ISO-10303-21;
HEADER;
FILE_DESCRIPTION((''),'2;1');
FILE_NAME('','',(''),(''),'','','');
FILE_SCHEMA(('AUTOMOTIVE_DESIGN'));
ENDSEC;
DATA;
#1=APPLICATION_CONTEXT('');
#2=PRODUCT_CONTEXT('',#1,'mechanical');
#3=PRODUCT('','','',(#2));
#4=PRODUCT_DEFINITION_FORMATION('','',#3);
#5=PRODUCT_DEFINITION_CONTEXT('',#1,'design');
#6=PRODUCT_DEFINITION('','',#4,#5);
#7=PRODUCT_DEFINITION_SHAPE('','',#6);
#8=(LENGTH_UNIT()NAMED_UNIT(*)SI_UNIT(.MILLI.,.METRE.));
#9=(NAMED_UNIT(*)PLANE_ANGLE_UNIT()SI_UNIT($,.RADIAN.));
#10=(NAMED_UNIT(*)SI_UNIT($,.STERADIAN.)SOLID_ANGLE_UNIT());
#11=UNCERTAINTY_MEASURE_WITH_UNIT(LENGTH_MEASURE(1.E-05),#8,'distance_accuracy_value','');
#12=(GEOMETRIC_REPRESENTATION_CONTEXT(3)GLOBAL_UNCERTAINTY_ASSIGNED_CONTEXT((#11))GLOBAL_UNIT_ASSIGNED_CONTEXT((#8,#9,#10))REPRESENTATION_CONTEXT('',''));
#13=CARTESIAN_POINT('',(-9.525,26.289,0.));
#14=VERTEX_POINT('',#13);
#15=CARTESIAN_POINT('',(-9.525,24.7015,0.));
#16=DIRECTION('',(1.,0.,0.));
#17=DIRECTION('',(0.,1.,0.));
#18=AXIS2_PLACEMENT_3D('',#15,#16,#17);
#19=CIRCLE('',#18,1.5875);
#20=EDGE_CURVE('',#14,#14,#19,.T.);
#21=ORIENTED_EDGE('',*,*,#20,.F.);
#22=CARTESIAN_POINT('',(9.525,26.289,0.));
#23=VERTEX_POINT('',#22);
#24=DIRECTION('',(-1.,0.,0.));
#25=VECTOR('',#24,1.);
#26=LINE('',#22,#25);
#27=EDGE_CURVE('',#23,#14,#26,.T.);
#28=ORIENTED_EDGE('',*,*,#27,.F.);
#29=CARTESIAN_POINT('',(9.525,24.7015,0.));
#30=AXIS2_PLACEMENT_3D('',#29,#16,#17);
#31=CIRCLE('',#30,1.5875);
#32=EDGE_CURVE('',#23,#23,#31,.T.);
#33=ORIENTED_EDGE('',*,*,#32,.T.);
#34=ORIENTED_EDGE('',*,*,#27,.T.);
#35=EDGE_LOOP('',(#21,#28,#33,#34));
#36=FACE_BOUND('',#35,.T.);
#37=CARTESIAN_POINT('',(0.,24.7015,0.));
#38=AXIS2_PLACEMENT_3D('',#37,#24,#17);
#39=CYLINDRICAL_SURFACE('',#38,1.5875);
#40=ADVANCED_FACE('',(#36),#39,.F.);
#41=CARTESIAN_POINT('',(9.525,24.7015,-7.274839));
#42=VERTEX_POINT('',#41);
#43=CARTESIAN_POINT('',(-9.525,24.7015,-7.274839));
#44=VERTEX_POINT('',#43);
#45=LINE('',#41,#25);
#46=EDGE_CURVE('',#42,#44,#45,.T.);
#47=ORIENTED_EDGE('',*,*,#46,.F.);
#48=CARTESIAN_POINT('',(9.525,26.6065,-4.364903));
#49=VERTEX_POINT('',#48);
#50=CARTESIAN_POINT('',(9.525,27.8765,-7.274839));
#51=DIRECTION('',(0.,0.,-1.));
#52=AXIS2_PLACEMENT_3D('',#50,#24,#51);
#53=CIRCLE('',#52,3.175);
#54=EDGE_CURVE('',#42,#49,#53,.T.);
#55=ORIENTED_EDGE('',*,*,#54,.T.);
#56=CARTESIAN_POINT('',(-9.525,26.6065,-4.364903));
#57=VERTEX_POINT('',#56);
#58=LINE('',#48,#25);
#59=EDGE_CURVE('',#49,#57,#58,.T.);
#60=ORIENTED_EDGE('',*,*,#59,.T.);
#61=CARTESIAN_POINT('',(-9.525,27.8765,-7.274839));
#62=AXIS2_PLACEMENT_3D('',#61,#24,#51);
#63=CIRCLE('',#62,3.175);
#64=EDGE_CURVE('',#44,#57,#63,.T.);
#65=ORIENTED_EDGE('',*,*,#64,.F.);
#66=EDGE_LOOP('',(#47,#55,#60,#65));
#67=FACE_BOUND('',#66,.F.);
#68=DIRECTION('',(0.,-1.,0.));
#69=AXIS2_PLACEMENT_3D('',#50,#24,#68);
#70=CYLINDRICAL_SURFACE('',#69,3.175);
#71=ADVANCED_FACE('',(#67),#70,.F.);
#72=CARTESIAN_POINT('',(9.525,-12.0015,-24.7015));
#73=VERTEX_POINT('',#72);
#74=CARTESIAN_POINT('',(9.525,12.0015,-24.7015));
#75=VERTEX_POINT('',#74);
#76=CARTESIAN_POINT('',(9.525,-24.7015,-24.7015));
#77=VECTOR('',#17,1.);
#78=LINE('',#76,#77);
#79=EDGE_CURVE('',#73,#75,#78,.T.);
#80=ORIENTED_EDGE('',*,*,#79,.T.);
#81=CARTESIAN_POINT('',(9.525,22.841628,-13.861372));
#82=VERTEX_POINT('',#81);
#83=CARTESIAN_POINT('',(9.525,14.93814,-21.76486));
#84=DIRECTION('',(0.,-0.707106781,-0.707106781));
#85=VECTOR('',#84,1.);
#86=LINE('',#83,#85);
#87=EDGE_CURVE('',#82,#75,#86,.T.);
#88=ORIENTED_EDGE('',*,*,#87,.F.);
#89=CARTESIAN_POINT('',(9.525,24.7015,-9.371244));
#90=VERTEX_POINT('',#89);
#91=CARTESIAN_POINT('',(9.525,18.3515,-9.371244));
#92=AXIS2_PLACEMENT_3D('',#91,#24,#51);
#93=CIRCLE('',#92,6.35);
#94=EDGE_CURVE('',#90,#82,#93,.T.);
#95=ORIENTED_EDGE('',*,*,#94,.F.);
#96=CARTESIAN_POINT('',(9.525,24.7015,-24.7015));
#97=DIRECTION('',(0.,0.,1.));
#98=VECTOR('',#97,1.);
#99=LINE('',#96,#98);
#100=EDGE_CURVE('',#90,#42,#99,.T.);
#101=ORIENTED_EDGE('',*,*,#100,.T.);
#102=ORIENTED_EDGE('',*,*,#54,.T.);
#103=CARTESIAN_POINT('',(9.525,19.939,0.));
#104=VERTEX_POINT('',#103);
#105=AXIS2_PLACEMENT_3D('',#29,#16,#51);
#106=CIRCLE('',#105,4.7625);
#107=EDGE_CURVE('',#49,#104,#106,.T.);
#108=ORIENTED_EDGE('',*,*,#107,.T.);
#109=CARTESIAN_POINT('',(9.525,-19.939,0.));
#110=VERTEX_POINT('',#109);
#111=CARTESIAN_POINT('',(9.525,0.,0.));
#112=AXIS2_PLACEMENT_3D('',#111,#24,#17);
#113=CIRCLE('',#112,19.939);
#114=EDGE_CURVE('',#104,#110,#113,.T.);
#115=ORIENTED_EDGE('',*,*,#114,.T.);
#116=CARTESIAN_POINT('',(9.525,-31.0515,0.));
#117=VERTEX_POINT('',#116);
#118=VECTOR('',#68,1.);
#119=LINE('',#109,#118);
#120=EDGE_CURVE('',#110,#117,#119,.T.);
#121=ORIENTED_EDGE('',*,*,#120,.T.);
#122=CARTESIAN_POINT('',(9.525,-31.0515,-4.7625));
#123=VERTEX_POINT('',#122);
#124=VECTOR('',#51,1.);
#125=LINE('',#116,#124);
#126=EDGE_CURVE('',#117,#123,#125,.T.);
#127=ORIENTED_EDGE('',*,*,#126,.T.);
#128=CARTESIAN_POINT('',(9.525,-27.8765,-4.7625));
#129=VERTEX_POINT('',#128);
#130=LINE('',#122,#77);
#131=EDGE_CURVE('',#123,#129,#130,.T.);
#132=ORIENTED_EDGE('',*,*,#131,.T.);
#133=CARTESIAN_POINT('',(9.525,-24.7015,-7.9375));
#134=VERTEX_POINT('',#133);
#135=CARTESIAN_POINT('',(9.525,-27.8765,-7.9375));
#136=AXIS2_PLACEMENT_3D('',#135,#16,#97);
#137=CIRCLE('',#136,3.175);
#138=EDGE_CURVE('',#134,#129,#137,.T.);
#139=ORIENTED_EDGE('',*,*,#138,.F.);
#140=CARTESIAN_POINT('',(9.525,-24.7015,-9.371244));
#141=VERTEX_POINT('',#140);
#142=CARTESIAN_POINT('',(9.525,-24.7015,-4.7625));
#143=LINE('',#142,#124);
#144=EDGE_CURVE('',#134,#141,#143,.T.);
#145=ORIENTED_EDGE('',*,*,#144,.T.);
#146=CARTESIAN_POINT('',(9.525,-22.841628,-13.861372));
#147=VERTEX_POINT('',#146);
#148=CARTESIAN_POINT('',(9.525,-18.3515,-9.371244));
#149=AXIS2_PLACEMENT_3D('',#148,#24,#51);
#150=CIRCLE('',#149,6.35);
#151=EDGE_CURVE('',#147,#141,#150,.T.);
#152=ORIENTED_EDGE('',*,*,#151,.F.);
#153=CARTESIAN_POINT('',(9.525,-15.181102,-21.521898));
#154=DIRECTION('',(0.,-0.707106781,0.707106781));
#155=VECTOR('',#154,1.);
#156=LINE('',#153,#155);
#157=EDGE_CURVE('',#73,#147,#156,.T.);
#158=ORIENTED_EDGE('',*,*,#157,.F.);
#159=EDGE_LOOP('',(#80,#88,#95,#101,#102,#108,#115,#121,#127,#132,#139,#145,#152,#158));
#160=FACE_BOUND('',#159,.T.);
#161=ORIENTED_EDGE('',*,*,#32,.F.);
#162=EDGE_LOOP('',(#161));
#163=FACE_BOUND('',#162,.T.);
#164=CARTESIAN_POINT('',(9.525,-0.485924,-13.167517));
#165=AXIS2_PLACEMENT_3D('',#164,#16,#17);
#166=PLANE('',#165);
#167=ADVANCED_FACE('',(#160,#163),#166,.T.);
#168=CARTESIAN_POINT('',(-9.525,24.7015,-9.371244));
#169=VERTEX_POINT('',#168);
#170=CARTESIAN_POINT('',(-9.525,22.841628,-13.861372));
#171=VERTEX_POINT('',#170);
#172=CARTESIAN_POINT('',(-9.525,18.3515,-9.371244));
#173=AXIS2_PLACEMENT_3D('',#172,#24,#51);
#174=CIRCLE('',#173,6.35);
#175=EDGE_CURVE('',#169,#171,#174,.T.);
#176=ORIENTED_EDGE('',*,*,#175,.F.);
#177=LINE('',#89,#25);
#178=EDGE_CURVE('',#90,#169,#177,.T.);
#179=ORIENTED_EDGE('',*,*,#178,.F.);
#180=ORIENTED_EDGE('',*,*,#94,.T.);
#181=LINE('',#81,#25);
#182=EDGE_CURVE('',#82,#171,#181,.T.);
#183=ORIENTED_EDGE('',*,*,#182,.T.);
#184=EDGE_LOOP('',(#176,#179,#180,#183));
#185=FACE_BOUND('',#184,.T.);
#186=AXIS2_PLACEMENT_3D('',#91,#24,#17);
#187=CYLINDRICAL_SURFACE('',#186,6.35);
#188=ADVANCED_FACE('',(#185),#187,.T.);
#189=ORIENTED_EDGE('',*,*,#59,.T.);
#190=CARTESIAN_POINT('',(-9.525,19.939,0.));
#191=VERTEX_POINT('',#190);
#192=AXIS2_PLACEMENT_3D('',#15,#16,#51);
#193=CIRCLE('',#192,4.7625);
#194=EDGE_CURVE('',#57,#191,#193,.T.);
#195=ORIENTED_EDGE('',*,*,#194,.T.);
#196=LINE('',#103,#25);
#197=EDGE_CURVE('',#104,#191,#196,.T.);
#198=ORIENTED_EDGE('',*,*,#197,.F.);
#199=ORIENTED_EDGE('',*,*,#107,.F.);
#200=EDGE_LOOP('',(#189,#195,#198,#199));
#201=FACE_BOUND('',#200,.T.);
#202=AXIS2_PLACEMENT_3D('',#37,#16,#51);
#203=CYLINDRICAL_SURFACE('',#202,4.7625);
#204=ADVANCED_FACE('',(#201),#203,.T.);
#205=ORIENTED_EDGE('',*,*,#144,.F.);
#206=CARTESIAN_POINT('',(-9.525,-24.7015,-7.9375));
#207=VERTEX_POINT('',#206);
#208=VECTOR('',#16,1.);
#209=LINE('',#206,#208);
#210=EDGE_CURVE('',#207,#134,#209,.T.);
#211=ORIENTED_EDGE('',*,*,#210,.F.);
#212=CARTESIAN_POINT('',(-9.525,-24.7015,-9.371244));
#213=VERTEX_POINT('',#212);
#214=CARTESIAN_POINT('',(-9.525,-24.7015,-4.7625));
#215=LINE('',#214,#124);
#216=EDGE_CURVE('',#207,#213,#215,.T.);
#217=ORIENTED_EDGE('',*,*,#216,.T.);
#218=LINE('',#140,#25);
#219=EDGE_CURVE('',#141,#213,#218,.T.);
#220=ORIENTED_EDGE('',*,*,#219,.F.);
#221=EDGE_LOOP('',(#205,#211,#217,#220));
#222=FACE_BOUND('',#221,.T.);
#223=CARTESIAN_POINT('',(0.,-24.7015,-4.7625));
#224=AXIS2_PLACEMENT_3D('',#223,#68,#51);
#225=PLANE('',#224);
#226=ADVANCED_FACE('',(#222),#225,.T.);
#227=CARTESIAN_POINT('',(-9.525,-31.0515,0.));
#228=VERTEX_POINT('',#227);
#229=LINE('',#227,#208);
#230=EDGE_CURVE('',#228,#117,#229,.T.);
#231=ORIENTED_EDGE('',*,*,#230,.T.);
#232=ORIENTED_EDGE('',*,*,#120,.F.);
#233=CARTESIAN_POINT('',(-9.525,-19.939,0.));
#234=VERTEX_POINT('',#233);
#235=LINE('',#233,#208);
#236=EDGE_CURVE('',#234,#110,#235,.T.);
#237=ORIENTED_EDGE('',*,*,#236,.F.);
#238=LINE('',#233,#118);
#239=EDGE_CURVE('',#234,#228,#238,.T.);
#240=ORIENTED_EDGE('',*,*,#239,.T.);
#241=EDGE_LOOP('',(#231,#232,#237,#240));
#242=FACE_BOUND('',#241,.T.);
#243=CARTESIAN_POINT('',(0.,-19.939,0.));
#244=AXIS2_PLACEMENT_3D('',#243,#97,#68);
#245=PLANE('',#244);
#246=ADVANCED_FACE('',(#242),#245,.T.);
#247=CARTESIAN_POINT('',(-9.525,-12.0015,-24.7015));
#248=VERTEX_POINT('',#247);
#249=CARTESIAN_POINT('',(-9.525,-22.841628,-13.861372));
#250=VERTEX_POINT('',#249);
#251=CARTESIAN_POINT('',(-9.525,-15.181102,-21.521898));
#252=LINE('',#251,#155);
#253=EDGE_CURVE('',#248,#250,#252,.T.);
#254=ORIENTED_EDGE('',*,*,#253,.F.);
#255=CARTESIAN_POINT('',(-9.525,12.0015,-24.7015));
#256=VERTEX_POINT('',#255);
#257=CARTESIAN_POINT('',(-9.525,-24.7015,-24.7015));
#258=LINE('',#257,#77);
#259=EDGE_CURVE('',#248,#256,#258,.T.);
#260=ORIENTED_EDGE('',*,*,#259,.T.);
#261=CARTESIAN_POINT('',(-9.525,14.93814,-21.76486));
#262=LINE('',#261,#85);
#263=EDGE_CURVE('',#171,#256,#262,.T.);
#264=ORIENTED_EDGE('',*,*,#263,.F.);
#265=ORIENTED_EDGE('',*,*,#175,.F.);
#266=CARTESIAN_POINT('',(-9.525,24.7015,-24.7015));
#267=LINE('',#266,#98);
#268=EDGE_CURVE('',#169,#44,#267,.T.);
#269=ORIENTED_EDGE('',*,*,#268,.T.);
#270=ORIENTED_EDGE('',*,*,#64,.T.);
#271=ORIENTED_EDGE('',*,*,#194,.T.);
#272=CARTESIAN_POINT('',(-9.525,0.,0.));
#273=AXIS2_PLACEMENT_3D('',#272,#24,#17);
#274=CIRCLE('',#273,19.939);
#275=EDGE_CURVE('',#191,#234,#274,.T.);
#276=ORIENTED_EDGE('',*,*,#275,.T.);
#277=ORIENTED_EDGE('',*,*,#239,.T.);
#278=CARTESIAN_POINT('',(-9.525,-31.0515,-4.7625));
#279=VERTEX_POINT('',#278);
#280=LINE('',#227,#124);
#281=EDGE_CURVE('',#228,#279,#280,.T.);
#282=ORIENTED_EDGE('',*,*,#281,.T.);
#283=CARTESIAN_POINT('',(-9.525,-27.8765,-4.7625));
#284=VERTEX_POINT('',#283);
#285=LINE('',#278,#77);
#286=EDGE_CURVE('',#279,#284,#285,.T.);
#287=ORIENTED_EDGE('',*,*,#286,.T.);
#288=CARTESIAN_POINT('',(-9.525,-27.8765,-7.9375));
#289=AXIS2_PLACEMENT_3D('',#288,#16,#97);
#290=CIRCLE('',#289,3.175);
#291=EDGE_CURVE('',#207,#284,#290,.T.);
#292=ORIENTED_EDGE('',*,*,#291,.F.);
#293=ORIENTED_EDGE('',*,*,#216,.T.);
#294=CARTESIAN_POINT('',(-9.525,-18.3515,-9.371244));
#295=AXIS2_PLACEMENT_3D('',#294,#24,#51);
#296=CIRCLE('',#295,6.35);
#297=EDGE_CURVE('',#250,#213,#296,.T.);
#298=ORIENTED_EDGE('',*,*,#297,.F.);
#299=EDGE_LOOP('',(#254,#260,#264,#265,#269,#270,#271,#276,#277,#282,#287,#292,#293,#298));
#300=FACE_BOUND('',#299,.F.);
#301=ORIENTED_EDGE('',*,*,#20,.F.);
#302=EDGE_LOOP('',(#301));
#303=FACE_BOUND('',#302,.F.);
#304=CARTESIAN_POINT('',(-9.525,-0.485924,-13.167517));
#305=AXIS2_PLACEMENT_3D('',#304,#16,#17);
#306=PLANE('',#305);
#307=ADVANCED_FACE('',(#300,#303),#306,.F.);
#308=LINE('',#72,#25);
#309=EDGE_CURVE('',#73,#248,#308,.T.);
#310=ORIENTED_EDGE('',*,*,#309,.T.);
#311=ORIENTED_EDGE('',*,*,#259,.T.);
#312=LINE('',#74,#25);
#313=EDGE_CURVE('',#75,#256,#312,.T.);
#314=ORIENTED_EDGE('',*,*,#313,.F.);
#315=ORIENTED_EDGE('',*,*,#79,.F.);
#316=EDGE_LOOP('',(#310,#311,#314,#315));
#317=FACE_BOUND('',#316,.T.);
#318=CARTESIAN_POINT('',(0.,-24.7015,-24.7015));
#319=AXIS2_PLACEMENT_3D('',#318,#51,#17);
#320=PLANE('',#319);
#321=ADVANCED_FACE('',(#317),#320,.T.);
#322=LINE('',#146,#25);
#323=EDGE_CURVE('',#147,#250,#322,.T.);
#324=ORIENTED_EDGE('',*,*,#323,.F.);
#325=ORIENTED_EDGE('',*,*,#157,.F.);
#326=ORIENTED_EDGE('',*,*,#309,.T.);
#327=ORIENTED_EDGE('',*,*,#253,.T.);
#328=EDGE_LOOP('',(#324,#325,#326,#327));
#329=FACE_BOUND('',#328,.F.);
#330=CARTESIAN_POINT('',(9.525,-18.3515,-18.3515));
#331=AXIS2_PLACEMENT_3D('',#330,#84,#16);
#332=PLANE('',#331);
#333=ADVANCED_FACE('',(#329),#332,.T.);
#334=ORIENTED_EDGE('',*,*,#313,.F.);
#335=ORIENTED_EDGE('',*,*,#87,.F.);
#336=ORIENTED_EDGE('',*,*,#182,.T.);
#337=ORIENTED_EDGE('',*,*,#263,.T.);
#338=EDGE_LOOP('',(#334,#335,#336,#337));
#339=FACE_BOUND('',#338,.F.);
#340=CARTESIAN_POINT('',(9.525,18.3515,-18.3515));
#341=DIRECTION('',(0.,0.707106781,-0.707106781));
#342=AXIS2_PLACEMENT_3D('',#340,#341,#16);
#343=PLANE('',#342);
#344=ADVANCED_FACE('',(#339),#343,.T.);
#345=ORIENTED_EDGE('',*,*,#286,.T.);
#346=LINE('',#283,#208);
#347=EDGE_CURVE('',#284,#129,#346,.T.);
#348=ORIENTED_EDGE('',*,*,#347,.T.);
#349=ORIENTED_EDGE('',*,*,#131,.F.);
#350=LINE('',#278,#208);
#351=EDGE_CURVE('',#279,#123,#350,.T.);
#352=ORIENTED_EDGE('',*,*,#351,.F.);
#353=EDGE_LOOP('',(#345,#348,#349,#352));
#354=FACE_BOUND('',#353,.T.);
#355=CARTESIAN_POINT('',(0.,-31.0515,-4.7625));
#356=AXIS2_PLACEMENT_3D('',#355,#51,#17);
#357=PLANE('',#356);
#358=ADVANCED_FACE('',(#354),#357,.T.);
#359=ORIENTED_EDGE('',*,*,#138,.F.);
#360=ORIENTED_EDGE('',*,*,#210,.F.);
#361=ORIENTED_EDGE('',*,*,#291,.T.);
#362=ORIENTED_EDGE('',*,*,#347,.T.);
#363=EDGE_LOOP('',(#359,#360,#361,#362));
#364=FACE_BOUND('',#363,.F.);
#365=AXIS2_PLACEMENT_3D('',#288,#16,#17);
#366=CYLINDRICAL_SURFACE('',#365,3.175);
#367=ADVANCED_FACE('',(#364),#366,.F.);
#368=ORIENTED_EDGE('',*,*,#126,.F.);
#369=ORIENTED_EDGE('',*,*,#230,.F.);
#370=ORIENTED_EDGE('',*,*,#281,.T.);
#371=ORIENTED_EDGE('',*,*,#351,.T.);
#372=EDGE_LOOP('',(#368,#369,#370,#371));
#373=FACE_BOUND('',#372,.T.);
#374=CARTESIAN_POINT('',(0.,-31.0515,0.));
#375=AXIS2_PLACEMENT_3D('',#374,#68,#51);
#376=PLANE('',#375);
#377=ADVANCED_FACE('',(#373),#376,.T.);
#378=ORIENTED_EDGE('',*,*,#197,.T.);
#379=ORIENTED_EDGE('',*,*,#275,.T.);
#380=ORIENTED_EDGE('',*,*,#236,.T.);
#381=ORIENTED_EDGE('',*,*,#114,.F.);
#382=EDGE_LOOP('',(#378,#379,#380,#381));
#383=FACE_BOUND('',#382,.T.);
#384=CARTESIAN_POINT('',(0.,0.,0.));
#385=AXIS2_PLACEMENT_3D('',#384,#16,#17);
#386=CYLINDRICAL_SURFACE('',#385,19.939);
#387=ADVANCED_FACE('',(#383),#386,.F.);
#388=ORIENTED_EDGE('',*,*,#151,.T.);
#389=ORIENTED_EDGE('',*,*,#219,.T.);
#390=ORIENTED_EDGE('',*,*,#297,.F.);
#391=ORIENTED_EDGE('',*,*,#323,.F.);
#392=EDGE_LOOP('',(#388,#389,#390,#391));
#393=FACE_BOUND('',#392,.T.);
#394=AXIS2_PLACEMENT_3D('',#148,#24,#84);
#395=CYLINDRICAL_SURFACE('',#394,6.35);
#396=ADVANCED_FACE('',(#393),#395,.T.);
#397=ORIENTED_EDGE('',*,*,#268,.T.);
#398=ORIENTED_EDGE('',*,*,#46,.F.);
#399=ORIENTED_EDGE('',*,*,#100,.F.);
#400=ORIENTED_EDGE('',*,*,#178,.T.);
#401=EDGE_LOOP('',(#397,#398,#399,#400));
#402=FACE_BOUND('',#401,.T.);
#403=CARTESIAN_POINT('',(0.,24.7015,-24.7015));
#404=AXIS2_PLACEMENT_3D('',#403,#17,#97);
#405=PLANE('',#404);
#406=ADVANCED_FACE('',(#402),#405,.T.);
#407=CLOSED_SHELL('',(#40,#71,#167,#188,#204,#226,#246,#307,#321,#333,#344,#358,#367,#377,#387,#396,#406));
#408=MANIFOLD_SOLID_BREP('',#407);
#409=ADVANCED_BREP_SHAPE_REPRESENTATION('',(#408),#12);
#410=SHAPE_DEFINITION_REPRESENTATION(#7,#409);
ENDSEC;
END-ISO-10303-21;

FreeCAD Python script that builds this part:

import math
import FreeCAD as App
import Part
import Sketcher
from FreeCAD import Vector
Q = App.Units.Quantity


def edges_at(feature, points):
    """Names of the edges that pass closest to the given points."""
    edges = feature.Shape.Edges
    near = lambda p: min(range(len(edges)), key=lambda i: edges[i].distToShape(Part.Vertex(*p))[0])
    return sorted({f"Edge{near(p) + 1}" for p in points})

doc = App.newDocument("Part")
params = doc.addObject("Spreadsheet::Sheet", "Params")
for row, (alias, value) in enumerate([
    ("sketch1_diameter", "0.125 in"),
    ("sketch1_radius", "0.785 in"),
    ("sketch1_radius2", "0.1875 in"),
    ("sketch1_width", "0.25 in"),
    ("sketch1_height", "0.785 in"),
    ("pad1_length", "0.75 in"),
    ("chamfer_size", "0.5 in"),
    ("fillet_radius", "0.125 in"),
    ("fillet2_radius", "0.25 in"),
], start=1):
    params.set(f"A{row}", alias)
    params.set(f"B{row}", "=" + value)
    params.setAlias(f"B{row}", alias)

body = doc.addObject("PartDesign::Body", "Body")

# Sketch on YZ plane
sketch1 = doc.addObject("Sketcher::SketchObject", "Sketch")
body.addObject(sketch1)
sketch1.AttachmentSupport = (doc.YZ_Plane, [""])
sketch1.MapMode = "FlatFace"
sketch1.addGeometry([
    Part.ArcOfCircle(Part.Circle(Vector(0, 0, 0), Vector(0, 0, 1), 19.939), math.radians(180), math.radians(360)),  # 0
    Part.LineSegment(Vector(-19.939, 0, 0), Vector(-31.0515, 0, 0)),  # 1
    Part.LineSegment(Vector(-31.0515, 0, 0), Vector(-31.0515, -4.7625, 0)),  # 2
    Part.LineSegment(Vector(-31.0515, -4.7625, 0), Vector(-24.7015, -4.7625, 0)),  # 3
    Part.LineSegment(Vector(-24.7015, -4.7625, 0), Vector(-24.7015, -24.7015, 0)),  # 4
    Part.LineSegment(Vector(-24.7015, -24.7015, 0), Vector(24.7015, -24.7015, 0)),  # 5
    Part.LineSegment(Vector(24.7015, -24.7015, 0), Vector(24.7015, -4.7625, 0)),  # 6
    Part.ArcOfCircle(Part.Circle(Vector(24.7015, 0, 0), Vector(0, 0, 1), 4.7625), math.radians(-90), math.radians(180)),  # 7
    Part.Circle(Vector(24.7015, 0, 0), Vector(0, 0, 1), 1.5875),  # 8
], False)
sketch1.addConstraint([
    Sketcher.Constraint("Coincident", 0, 1, 1, 1),
    Sketcher.Constraint("Coincident", 1, 2, 2, 1),
    Sketcher.Constraint("Coincident", 2, 2, 3, 1),
    Sketcher.Constraint("Coincident", 3, 2, 4, 1),
    Sketcher.Constraint("Coincident", 4, 2, 5, 1),
    Sketcher.Constraint("Coincident", 5, 2, 6, 1),
    Sketcher.Constraint("Coincident", 6, 2, 7, 1),
    Sketcher.Constraint("Tangent", 7, 2, 0, 2),
    Sketcher.Constraint("Horizontal", 1),
    Sketcher.Constraint("Vertical", 2),
    Sketcher.Constraint("Horizontal", 3),
    Sketcher.Constraint("Vertical", 4),
    Sketcher.Constraint("Horizontal", 5),
    Sketcher.Constraint("Vertical", 6),
    Sketcher.Constraint("Coincident", 0, 3, -1, 1),
    Sketcher.Constraint("Coincident", 8, 3, 7, 3),
    Sketcher.Constraint("Symmetric", 3, 2, 6, 2, -2),
    Sketcher.Constraint("PointOnObject", 7, 3, -1),
    Sketcher.Constraint("PointOnObject", 0, 1, -1),
    Sketcher.Constraint("Vertical", 8, 3, 5, 2),
    Sketcher.Constraint("Diameter", 8, Q("0.125 in")),
    Sketcher.Constraint("Radius", 0, Q("0.785 in")),
    Sketcher.Constraint("Radius", 7, Q("0.1875 in")),
    Sketcher.Constraint("DistanceX", 3, 1, 3, 2, Q("0.25 in")),
    Sketcher.Constraint("DistanceY", 4, 2, 4, 1, Q("0.785 in")),
])
sketch1.setExpression("Constraints[20]", "Params.sketch1_diameter")
sketch1.setExpression("Constraints[21]", "Params.sketch1_radius")
sketch1.setExpression("Constraints[22]", "Params.sketch1_radius2")
sketch1.setExpression("Constraints[23]", "Params.sketch1_width")
sketch1.setExpression("Constraints[24]", "Params.sketch1_height")
pad1 = doc.addObject("PartDesign::Pad", "Pad")
body.addObject(pad1)
pad1.Profile = sketch1
pad1.setExpression("Length", "Params.pad1_length")
pad1.Midplane = True
doc.recompute()

chamfer = doc.addObject("PartDesign::Chamfer", "Chamfer")
body.addObject(chamfer)
chamfer.Base = (pad1, edges_at(pad1, [(0, -24.701, -24.701), (0, 24.701, -24.701)]))
chamfer.setExpression("Size", "Params.chamfer_size")
doc.recompute()

fillet = doc.addObject("PartDesign::Fillet", "Fillet")
body.addObject(fillet)
fillet.Base = (chamfer, edges_at(chamfer, [(0, 24.701, -4.763), (0, -24.701, -4.763)]))
fillet.setExpression("Radius", "Params.fillet_radius")
doc.recompute()

fillet2 = doc.addObject("PartDesign::Fillet", "Fillet001")
body.addObject(fillet2)
fillet2.Base = (fillet, edges_at(fillet, [(0, 24.701, -12.002), (0, -24.701, -12.002)]))
fillet2.setExpression("Radius", "Params.fillet2_radius")

doc.recompute()
